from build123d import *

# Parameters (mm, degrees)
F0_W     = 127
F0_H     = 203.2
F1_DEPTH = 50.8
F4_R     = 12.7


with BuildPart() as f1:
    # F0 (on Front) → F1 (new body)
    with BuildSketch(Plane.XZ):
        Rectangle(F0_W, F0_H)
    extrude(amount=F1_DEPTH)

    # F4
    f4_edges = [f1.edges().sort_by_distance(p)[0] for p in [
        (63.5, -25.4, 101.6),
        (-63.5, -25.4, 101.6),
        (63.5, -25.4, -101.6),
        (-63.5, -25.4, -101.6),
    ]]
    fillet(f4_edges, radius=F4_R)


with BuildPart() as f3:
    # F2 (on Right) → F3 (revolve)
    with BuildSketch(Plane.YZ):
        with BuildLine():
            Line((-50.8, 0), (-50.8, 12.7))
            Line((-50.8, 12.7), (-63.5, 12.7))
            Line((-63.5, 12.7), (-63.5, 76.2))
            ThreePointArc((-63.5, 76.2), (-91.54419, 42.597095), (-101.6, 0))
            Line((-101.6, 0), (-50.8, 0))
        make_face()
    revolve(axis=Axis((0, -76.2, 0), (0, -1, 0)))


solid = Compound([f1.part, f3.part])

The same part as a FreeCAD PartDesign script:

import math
import FreeCAD as App
import Part
import Sketcher
from FreeCAD import Vector
Q = App.Units.Quantity


def edges_at(feature, points):
    """Names of the edges that pass closest to the given points."""
    edges = feature.Shape.Edges
    near = lambda p: min(range(len(edges)), key=lambda i: edges[i].distToShape(Part.Vertex(*p))[0])
    return sorted({f"Edge{near(p) + 1}" for p in points})

doc = App.newDocument("Part")
params = doc.addObject("Spreadsheet::Sheet", "Params")
for row, (alias, value) in enumerate([
    ("sketch1_width", "5 in"),
    ("sketch1_height", "8 in"),
    ("pad1_length", "2 in"),
    ("fillet_radius", "0.5 in"),
    ("sketch2_width", "2 in"),
    ("sketch2_radius", "3.75 in"),
    ("sketch2_width2", "0.5 in"),
    ("revolution_angle", "360 deg"),
], start=1):
    params.set(f"A{row}", alias)
    params.set(f"B{row}", "=" + value)
    params.setAlias(f"B{row}", alias)

body = doc.addObject("PartDesign::Body", "Body")

sketch1 = body.newObject("Sketcher::SketchObject", "Sketch")
sketch1.AttachmentSupport = (doc.getObject("XZ_Plane"), [""])
sketch1.MapMode = "FlatFace"
sketch1.addGeometry(Part.LineSegment(Vector(-63.5, 101.6, 0), Vector(-63.5, -101.6, 0)), False)
sketch1.addGeometry(Part.LineSegment(Vector(-63.5, -101.6, 0), Vector(63.5, -101.6, 0)), False)
sketch1.addGeometry(Part.LineSegment(Vector(63.5, -101.6, 0), Vector(63.5, 101.6, 0)), False)
sketch1.addGeometry(Part.LineSegment(Vector(63.5, 101.6, 0), Vector(-63.5, 101.6, 0)), False)
sketch1.addConstraint(Sketcher.Constraint("Coincident", 0, 2, 1, 1))
sketch1.addConstraint(Sketcher.Constraint("Coincident", 1, 2, 2, 1))
sketch1.addConstraint(Sketcher.Constraint("Coincident", 2, 2, 3, 1))
sketch1.addConstraint(Sketcher.Constraint("Coincident", 3, 2, 0, 1))
sketch1.addConstraint(Sketcher.Constraint("Vertical", 0))
sketch1.addConstraint(Sketcher.Constraint("Horizontal", 1))
sketch1.addConstraint(Sketcher.Constraint("Vertical", 2))
sketch1.addConstraint(Sketcher.Constraint("Horizontal", 3))
sketch1.addConstraint(Sketcher.Constraint("Symmetric", 0, 2, 2, 2, -1, 1))
sketch1.addConstraint(Sketcher.Constraint("DistanceX", 1, 1, 1, 2, Q("5 in")))
sketch1.addConstraint(Sketcher.Constraint("DistanceY", 0, 2, 0, 1, Q("8 in")))
sketch1.setExpression("Constraints[9]", "Params.sketch1_width")
sketch1.setExpression("Constraints[10]", "Params.sketch1_height")
pad1 = body.newObject("PartDesign::Pad", "Pad")
pad1.Profile = sketch1
pad1.setExpression("Length", "Params.pad1_length")
doc.recompute()

fillet = body.newObject("PartDesign::Fillet", "Fillet")
fillet.Base = (pad1, edges_at(pad1, [
    (63.5, -25.4, 101.6),
    (-63.5, -25.4, 101.6),
    (63.5, -25.4, -101.6),
    (-63.5, -25.4, -101.6),
]))
fillet.setExpression("Radius", "Params.fillet_radius")
body2 = doc.addObject("PartDesign::Body", "Body001")

sketch2 = body2.newObject("Sketcher::SketchObject", "Sketch001")
sketch2.AttachmentSupport = (doc.getObject("YZ_Plane001"), [""])
sketch2.MapMode = "FlatFace"
sketch2.addGeometry(Part.LineSegment(Vector(-50.8, 0, 0), Vector(-50.8, 12.7, 0)), False)
sketch2.addGeometry(Part.LineSegment(Vector(-50.8, 12.7, 0), Vector(-63.5, 12.7, 0)), False)
sketch2.addGeometry(Part.LineSegment(Vector(-63.5, 12.7, 0), Vector(-63.5, 76.2, 0)), False)
sketch2.addGeometry(Part.ArcOfCircle(Part.Circle(Vector(-6.350001, 0, 0), Vector(0, 0, 1), 95.249999), math.radians(126.869897), math.radians(180)), False)
sketch2.addGeometry(Part.LineSegment(Vector(-101.6, 0, 0), Vector(-50.8, 0, 0)), False)
sketch2.addConstraint(Sketcher.Constraint("Coincident", 0, 2, 1, 1))
sketch2.addConstraint(Sketcher.Constraint("Coincident", 1, 2, 2, 1))
sketch2.addConstraint(Sketcher.Constraint("Coincident", 2, 2, 3, 1))
sketch2.addConstraint(Sketcher.Constraint("Coincident", 3, 2, 4, 1))
sketch2.addConstraint(Sketcher.Constraint("Coincident", 4, 2, 0, 1))
sketch2.addConstraint(Sketcher.Constraint("Vertical", 0))
sketch2.addConstraint(Sketcher.Constraint("Horizontal", 1))
sketch2.addConstraint(Sketcher.Constraint("Vertical", 2))
sketch2.addConstraint(Sketcher.Constraint("Horizontal", 4))
sketch2.addConstraint(Sketcher.Constraint("PointOnObject", 3, 3, -1))
sketch2.addConstraint(Sketcher.Constraint("PointOnObject", 3, 2, -1))
sketch2.addConstraint(Sketcher.Constraint("Equal", 1, 0))
sketch2.addConstraint(Sketcher.Constraint("DistanceX", 4, 1, 4, 2, Q("2 in")))
sketch2.addConstraint(Sketcher.Constraint("Radius", 3, Q("3.75 in")))
sketch2.addConstraint(Sketcher.Constraint("DistanceX", 1, 2, 1, 1, Q("0.5 in")))
sketch2.addConstraint(Sketcher.Constraint("DistanceX", 0, 2, -1, 1, Q("2 in")))
sketch2.setExpression("Constraints[12]", "Params.sketch2_width")
sketch2.setExpression("Constraints[13]", "Params.sketch2_radius")
sketch2.setExpression("Constraints[14]", "Params.sketch2_width2")
revolution = body2.newObject("PartDesign::Revolution", "Revolution")
revolution.Profile = sketch2
revolution.ReferenceAxis = (sketch2, ["H_Axis"])
revolution.setExpression("Angle", "Params.revolution_angle")

doc.recompute()
